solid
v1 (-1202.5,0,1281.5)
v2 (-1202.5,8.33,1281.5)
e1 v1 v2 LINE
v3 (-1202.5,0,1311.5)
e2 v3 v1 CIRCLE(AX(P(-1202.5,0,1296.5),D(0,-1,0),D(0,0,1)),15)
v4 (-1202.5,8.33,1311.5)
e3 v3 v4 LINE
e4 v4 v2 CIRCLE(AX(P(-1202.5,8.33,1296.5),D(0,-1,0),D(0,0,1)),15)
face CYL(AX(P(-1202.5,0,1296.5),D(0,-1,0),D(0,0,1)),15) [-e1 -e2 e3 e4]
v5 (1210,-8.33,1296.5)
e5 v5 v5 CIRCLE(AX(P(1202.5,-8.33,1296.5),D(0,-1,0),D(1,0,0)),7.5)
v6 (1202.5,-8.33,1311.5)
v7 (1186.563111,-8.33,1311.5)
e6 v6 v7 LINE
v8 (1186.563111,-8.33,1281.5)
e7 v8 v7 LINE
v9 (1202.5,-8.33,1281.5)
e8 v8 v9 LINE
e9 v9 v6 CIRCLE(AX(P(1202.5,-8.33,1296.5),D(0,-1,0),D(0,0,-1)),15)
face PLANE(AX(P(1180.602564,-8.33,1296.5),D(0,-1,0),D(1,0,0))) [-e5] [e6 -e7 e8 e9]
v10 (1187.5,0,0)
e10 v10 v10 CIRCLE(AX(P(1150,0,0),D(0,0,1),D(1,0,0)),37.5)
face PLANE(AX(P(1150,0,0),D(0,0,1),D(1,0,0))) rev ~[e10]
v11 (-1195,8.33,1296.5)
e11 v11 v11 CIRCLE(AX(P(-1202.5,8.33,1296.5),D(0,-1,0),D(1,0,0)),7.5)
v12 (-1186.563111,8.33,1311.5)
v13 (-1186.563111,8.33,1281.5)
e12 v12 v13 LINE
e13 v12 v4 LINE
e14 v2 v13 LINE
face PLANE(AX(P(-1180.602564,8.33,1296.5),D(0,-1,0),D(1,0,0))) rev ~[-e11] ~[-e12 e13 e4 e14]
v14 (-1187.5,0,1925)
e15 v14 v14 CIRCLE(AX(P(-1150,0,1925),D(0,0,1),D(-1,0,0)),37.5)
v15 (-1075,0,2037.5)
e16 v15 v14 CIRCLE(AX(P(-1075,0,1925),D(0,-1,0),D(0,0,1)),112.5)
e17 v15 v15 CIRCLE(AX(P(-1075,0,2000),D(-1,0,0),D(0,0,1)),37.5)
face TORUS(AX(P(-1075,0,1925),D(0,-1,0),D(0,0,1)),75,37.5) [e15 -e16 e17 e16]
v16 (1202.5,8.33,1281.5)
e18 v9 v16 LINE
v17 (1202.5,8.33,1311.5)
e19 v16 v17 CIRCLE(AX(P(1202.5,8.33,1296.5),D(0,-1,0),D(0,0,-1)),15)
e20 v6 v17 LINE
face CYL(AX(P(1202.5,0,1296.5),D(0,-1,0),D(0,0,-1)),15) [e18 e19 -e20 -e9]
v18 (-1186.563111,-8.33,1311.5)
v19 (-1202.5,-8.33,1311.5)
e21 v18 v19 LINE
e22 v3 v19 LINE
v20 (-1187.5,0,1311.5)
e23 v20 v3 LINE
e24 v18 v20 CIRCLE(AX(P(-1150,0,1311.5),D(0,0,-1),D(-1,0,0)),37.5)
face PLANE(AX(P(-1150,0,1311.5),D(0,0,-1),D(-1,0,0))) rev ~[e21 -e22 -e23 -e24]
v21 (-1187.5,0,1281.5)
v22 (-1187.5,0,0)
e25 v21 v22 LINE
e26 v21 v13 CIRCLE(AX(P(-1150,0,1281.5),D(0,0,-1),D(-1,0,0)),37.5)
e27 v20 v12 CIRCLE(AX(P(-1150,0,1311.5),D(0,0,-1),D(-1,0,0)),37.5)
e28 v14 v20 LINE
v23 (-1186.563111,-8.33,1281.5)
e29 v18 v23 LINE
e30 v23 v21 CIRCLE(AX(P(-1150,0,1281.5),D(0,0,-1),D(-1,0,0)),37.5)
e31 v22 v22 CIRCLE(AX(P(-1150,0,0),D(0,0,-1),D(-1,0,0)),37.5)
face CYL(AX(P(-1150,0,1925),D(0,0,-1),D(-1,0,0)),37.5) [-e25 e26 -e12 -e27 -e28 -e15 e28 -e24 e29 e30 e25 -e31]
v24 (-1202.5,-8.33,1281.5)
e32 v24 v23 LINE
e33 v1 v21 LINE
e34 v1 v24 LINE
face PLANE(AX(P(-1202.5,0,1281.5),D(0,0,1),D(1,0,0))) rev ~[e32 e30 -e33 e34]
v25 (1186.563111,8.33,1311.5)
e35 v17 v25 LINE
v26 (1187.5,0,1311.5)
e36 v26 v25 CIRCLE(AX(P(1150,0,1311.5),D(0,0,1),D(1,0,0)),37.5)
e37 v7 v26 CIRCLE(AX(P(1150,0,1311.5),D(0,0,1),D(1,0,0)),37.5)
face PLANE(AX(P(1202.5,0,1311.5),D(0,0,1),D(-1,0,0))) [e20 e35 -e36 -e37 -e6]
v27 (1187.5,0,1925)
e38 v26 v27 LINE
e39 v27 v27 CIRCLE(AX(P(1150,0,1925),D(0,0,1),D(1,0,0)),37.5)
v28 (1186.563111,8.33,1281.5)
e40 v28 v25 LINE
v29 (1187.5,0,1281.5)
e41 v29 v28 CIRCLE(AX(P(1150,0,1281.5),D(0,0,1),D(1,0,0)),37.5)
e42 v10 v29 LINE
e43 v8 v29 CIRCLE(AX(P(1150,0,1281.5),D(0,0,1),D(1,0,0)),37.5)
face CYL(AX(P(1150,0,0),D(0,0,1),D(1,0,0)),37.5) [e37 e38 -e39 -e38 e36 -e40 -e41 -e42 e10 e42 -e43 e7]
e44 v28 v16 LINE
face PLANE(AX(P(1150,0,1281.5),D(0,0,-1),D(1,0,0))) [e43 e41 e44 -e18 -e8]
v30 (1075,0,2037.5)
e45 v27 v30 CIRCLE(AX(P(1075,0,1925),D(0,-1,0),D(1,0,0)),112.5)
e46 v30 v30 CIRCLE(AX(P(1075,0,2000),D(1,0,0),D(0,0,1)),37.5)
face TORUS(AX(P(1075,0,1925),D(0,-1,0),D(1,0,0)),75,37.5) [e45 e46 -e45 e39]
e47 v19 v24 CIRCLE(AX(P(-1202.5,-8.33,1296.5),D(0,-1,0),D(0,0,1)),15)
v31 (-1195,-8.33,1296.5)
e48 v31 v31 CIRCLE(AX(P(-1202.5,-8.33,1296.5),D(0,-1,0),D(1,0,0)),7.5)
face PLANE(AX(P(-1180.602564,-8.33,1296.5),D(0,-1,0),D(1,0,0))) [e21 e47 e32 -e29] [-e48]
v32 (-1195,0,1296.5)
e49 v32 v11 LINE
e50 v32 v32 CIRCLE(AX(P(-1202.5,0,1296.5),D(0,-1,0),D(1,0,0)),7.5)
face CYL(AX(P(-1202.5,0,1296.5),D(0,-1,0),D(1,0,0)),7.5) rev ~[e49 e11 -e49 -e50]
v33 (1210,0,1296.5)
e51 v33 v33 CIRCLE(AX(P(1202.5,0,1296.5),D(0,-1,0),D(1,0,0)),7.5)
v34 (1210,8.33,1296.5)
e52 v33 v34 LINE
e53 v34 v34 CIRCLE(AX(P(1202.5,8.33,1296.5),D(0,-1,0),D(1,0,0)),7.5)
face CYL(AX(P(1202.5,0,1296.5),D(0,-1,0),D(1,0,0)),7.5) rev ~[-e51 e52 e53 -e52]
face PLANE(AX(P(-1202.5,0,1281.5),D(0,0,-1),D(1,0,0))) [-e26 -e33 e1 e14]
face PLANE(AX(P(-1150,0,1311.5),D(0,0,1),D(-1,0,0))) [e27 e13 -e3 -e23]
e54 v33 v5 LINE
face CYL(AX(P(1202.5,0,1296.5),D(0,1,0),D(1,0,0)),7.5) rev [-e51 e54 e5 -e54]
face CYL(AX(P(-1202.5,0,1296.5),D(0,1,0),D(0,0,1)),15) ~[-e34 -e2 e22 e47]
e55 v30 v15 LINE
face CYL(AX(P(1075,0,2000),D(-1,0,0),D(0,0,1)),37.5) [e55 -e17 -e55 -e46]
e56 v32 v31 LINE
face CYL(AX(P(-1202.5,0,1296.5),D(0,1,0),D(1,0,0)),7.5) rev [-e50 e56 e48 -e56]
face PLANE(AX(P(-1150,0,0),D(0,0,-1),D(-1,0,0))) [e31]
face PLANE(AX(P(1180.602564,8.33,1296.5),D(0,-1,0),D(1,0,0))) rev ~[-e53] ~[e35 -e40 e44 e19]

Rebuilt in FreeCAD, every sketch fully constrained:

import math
import FreeCAD as App
import Part
import Sketcher
Q = App.Units.Quantity

doc = App.newDocument("Part")
body = doc.addObject("PartDesign::Body", "Body")

# Sketch on XY plane
sketch1 = body.newObject("Sketcher::SketchObject", "Sketch")
sketch1.AttachmentSupport = (doc.getObject("XY_Plane"), [""])
sketch1.MapMode = "FlatFace"
sketch1.addGeometry(Part.Circle(App.Vector(1150, 0, 0), App.Vector(0, 0, 1), 38), False)
sketch1.addConstraint(Sketcher.Constraint("PointOnObject", 0, 3, -1))
sketch1.addConstraint(Sketcher.Constraint("Diameter", 0, Q("75 mm")))
sketch1.addConstraint(Sketcher.Constraint("DistanceX", -1, 1, 0, 3, Q("1150 mm")))

# Sketch on XZ plane
sketch2 = body.newObject("Sketcher::SketchObject", "Sketch001")
sketch2.AttachmentSupport = (doc.getObject("XZ_Plane"), [""])
sketch2.MapMode = "FlatFace"
sketch2.addGeometry(Part.LineSegment(App.Vector(1150, 0, 0), App.Vector(1150, 1925, 0)), False)
sketch2.addGeometry(Part.ArcOfCircle(Part.Circle(App.Vector(1075, 1925, 0), App.Vector(0, 0, 1), 75), math.radians(0), math.radians(90)), False)
sketch2.addGeometry(Part.LineSegment(App.Vector(1075, 2000, 0), App.Vector(-1075, 2000, 0)), False)
sketch2.addGeometry(Part.ArcOfCircle(Part.Circle(App.Vector(-1075, 1925, 0), App.Vector(0, 0, 1), 75), math.radians(90), math.radians(180)), False)
sketch2.addGeometry(Part.LineSegment(App.Vector(-1150, 1925, 0), App.Vector(-1150, 0, 0)), False)
sketch2.addConstraint(Sketcher.Constraint("Tangent", 0, 2, 1, 1))
sketch2.addConstraint(Sketcher.Constraint("Tangent", 1, 2, 2, 1))
sketch2.addConstraint(Sketcher.Constraint("Tangent", 2, 2, 3, 1))
sketch2.addConstraint(Sketcher.Constraint("Tangent", 3, 2, 4, 1))
sketch2.addConstraint(Sketcher.Constraint("Vertical", 0))
sketch2.addConstraint(Sketcher.Constraint("Horizontal", 2))
sketch2.addConstraint(Sketcher.Constraint("Vertical", 4))
sketch2.addConstraint(Sketcher.Constraint("Equal", 1, 3))
sketch2.addConstraint(Sketcher.Constraint("Symmetric", 0, 1, 4, 2, -1, 1))
sketch2.addConstraint(Sketcher.Constraint("PointOnObject", 0, 1, -1))
sketch2.addConstraint(Sketcher.Constraint("Radius", 1, Q("75 mm")))
sketch2.addConstraint(Sketcher.Constraint("DistanceX", 2, 2, 2, 1, Q("2150 mm")))
sketch2.addConstraint(Sketcher.Constraint("DistanceY", 0, 1, 0, 2, Q("1925 mm")))
doc.recompute()

additivepipe = body.newObject("PartDesign::AdditivePipe", "AdditivePipe")
additivepipe.Profile = sketch1
additivepipe.Spine = (sketch2, ["Edge1", "Edge2", "Edge3", "Edge4", "Edge5"])

# Sketch on XZ plane
sketch3 = body.newObject("Sketcher::SketchObject", "Sketch002")
sketch3.AttachmentSupport = (doc.getObject("XZ_Plane"), [""])
sketch3.MapMode = "FlatFace"
sketch3.addGeometry(Part.LineSegment(App.Vector(1202, 1312, 0), App.Vector(1150, 1312, 0)), False)
sketch3.addGeometry(Part.LineSegment(App.Vector(1150, 1312, 0), App.Vector(1150, 1282, 0)), False)
sketch3.addGeometry(Part.LineSegment(App.Vector(1150, 1282, 0), App.Vector(1202, 1282, 0)), False)
sketch3.addGeometry(Part.ArcOfCircle(Part.Circle(App.Vector(1202, 1296, 0), App.Vector(0, 0, 1), 15), math.radians(-90), math.radians(90)), False)
sketch3.addGeometry(Part.Circle(App.Vector(1202, 1296, 0), App.Vector(0, 0, 1), 8), False)
sketch3.addGeometry(Part.LineSegment(App.Vector(-1150, 1282, 0), App.Vector(-1150, 1312, 0)), False)
sketch3.addGeometry(Part.LineSegment(App.Vector(-1150, 1312, 0), App.Vector(-1202, 1312, 0)), False)
sketch3.addGeometry(Part.ArcOfCircle(Part.Circle(App.Vector(-1202, 1296, 0), App.Vector(0, 0, 1), 15), math.radians(90), math.radians(270)), False)
sketch3.addGeometry(Part.LineSegment(App.Vector(-1202, 1282, 0), App.Vector(-1150, 1282, 0)), False)
sketch3.addGeometry(Part.Circle(App.Vector(-1202, 1296, 0), App.Vector(0, 0, 1), 8), False)
sketch3.addConstraint(Sketcher.Constraint("Coincident", 0, 2, 1, 1))
sketch3.addConstraint(Sketcher.Constraint("Coincident", 1, 2, 2, 1))
sketch3.addConstraint(Sketcher.Constraint("Tangent", 2, 2, 3, 1))
sketch3.addConstraint(Sketcher.Constraint("Tangent", 3, 2, 0, 1))
sketch3.addConstraint(Sketcher.Constraint("Coincident", 5, 2, 6, 1))
sketch3.addConstraint(Sketcher.Constraint("Tangent", 6, 2, 7, 1))
sketch3.addConstraint(Sketcher.Constraint("Tangent", 7, 2, 8, 1))
sketch3.addConstraint(Sketcher.Constraint("Coincident", 8, 2, 5, 1))
sketch3.addConstraint(Sketcher.Constraint("Horizontal", 0))
sketch3.addConstraint(Sketcher.Constraint("Vertical", 1))
sketch3.addConstraint(Sketcher.Constraint("Horizontal", 2))
sketch3.addConstraint(Sketcher.Constraint("Vertical", 5))
sketch3.addConstraint(Sketcher.Constraint("Horizontal", 6))
sketch3.addConstraint(Sketcher.Constraint("Horizontal", 8))
sketch3.addConstraint(Sketcher.Constraint("Coincident", 4, 3, 3, 3))
sketch3.addConstraint(Sketcher.Constraint("Coincident", 9, 3, 7, 3))
sketch3.addConstraint(Sketcher.Constraint("Equal", 3, 7))
sketch3.addConstraint(Sketcher.Constraint("Equal", 4, 9))
sketch3.addConstraint(Sketcher.Constraint("Symmetric", 3, 3, 7, 3, -2))
sketch3.addConstraint(Sketcher.Constraint("Equal", 2, 6))
sketch3.addConstraint(Sketcher.Constraint("Diameter", 4, Q("15 mm")))
sketch3.addConstraint(Sketcher.Constraint("Radius", 3, Q("15 mm")))
sketch3.addConstraint(Sketcher.Constraint("DistanceX", 0, 2, 0, 1, Q("52.5 mm")))
sketch3.addConstraint(Sketcher.Constraint("DistanceX", -1, 1, 0, 2, Q("1150 mm")))
sketch3.addConstraint(Sketcher.Constraint("DistanceY", -1, 1, 3, 3, Q("1296.5 mm")))
pad1 = body.newObject("PartDesign::Pad", "Pad")
pad1.Profile = sketch3
pad1.Type = "TwoLengths"
pad1.Length = 8.33
pad1.Length2 = 8.33

doc.recompute()
